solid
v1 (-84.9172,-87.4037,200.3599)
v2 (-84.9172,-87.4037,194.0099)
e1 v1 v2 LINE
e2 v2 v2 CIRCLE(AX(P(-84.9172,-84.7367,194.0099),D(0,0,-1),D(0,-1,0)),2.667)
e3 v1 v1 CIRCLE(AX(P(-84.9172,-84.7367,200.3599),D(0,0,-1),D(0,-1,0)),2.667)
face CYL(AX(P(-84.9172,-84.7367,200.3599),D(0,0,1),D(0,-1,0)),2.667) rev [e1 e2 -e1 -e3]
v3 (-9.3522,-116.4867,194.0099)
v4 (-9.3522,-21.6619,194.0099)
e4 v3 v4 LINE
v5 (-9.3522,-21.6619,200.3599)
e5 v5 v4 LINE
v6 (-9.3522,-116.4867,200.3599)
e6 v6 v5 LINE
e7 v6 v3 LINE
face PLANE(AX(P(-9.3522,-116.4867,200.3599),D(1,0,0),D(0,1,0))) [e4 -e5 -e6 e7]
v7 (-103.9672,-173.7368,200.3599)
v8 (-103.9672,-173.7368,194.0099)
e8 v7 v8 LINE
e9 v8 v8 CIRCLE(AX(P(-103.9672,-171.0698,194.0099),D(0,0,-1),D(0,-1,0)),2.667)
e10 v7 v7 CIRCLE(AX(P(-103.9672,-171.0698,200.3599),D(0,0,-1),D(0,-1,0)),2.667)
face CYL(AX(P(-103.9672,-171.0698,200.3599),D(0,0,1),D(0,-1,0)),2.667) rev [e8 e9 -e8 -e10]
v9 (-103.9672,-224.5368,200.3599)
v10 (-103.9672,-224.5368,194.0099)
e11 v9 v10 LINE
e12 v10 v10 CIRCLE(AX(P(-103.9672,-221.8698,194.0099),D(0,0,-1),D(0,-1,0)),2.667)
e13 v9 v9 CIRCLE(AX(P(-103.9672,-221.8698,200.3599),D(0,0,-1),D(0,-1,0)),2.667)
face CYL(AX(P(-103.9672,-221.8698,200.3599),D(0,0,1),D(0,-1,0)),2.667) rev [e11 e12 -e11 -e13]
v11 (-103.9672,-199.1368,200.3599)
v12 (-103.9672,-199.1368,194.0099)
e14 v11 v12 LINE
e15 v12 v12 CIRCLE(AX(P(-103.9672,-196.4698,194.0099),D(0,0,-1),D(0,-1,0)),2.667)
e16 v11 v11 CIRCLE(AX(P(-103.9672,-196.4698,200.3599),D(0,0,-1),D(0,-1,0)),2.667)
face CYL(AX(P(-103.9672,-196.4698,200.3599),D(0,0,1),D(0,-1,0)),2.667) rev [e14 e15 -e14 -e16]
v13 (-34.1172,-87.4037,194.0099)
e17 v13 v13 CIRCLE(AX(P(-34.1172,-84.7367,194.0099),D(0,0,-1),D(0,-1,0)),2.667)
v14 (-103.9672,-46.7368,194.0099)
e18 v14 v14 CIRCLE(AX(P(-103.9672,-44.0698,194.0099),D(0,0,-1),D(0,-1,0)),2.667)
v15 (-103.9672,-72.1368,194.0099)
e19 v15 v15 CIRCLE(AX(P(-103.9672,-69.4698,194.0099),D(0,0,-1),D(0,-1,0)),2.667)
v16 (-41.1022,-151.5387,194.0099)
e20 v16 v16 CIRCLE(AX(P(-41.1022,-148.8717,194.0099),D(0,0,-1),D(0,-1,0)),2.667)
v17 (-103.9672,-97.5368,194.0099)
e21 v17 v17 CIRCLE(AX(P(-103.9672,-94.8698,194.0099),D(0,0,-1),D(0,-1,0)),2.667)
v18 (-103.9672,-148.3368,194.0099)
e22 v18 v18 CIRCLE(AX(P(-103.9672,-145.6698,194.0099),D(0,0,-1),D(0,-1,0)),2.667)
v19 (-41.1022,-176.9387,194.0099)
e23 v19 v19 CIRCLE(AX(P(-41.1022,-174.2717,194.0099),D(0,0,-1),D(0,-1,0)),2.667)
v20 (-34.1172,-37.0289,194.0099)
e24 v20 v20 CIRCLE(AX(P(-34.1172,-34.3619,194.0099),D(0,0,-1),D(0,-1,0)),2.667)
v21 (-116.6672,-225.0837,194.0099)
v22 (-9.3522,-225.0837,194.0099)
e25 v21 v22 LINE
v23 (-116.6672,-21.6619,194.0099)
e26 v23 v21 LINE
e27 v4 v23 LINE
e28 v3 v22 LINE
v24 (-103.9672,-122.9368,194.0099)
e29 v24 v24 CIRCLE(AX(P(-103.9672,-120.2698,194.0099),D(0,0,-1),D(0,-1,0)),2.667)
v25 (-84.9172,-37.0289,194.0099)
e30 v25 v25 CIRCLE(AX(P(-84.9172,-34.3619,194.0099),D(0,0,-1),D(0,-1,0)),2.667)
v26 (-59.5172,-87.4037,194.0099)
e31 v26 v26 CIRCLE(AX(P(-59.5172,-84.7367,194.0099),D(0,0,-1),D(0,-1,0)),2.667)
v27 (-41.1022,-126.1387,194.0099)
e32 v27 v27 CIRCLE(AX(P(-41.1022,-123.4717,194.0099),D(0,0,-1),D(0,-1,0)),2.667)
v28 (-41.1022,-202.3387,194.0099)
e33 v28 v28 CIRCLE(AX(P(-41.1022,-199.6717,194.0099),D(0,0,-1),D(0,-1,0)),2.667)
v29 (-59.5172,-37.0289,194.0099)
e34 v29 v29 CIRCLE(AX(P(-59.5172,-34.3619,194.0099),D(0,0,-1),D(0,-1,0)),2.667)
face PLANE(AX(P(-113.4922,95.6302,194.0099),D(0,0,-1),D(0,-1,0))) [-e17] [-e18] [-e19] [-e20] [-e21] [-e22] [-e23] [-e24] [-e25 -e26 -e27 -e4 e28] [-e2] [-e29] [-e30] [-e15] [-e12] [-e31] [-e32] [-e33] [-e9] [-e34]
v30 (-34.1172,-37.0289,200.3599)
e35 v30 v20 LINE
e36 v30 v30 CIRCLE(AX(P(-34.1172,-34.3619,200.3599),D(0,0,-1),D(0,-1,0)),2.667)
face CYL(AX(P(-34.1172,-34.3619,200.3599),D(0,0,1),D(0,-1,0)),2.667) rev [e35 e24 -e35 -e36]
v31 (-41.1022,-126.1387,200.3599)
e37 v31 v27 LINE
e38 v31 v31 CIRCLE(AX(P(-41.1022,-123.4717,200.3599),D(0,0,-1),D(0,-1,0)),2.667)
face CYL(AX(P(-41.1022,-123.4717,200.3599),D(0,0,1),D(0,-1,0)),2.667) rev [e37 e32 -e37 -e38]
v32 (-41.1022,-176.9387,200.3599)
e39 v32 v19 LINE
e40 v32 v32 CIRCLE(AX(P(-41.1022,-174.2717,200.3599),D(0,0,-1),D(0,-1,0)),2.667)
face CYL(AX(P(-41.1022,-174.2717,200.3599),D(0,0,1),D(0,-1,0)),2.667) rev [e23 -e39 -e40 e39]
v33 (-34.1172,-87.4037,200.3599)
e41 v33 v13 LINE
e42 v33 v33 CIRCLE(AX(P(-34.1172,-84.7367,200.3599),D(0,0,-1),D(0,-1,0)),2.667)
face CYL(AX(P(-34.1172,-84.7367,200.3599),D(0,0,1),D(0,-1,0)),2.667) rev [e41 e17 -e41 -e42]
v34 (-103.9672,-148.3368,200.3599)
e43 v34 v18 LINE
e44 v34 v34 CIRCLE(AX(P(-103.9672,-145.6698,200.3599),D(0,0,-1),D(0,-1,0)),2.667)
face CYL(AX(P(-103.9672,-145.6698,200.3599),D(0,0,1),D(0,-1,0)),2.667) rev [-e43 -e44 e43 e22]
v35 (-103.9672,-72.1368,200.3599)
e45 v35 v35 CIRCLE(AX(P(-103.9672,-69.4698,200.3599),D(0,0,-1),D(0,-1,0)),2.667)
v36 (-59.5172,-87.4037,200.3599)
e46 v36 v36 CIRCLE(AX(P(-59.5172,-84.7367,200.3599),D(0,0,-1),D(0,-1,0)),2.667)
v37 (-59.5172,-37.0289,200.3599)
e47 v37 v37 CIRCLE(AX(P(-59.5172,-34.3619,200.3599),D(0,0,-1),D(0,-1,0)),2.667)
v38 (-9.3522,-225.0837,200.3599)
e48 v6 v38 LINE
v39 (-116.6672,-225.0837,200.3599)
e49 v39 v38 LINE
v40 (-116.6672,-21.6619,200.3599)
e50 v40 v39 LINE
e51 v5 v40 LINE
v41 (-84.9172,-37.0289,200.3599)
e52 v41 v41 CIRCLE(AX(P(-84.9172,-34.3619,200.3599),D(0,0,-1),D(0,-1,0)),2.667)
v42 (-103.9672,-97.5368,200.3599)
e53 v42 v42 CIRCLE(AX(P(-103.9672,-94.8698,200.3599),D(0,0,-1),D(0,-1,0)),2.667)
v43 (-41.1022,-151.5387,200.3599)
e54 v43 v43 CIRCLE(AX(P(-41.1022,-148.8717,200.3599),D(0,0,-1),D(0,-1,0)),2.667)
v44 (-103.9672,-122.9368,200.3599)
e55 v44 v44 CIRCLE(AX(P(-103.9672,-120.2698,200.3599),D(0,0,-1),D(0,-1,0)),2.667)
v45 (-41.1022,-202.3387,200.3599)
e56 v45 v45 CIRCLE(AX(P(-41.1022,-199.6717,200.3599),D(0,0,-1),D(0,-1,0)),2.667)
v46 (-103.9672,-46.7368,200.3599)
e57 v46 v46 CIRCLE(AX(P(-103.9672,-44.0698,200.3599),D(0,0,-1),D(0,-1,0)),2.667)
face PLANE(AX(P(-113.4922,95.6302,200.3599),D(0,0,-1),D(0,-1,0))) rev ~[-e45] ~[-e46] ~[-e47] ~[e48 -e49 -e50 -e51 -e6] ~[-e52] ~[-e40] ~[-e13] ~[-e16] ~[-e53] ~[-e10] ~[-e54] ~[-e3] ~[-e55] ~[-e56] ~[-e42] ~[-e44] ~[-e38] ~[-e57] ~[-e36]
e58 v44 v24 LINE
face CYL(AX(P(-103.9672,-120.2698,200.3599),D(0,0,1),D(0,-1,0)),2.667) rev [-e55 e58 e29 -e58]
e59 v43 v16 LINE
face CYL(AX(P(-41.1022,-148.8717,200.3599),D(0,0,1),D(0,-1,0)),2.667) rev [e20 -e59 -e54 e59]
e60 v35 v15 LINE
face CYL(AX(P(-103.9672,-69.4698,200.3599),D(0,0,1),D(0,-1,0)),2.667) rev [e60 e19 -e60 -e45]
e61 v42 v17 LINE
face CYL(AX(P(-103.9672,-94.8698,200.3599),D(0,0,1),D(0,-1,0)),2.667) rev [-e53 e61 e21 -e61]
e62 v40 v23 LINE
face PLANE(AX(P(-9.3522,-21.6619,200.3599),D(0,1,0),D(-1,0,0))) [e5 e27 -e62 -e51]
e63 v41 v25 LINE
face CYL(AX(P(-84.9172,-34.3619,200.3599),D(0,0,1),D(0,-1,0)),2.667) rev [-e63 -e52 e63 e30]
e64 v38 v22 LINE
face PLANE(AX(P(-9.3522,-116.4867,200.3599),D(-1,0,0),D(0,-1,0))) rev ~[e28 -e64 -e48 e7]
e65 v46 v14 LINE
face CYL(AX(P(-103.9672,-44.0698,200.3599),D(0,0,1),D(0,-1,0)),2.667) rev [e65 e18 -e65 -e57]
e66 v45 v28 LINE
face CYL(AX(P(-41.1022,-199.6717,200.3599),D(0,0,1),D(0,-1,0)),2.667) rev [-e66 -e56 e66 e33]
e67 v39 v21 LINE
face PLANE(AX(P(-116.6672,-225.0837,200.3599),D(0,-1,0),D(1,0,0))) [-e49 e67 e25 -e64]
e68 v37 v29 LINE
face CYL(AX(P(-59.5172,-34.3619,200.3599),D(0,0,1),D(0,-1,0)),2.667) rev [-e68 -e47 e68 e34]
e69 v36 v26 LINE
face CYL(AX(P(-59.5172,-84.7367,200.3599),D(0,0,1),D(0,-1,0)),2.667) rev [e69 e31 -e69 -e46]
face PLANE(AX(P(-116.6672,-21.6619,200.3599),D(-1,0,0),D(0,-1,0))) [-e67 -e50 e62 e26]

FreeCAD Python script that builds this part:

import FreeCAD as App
import Part
import Sketcher

V = App.Vector
Q = App.Units.Quantity


def add_polygon(sketch, points):
    """Adds a closed chain of lines whose ends are joined by coincident constraints."""
    first, n = sketch.GeometryCount, len(points)
    for a, b in zip(points, points[1:] + points[:1]):
        sketch.addGeometry(Part.LineSegment(App.Vector(*a, 0), App.Vector(*b, 0)), False)
    for i in range(n):
        sketch.addConstraint(Sketcher.Constraint("Coincident", first + i, 2, first + (i + 1) % n, 1))

doc = App.newDocument("Part")
body = doc.addObject("PartDesign::Body", "Body")

# Sketch on XY plane
sketch1 = body.newObject("Sketcher::SketchObject", "Sketch")
sketch1.AttachmentSupport = (doc.getObject("XY_Plane"), [""])
sketch1.MapMode = "FlatFace"
sketch1.AttachmentOffset = App.Placement(V(0, 0, 200.3599), App.Rotation())
add_polygon(sketch1, [(-9.4, -21.7), (-9.4, -225.1), (-116.7, -225.1), (-116.7, -21.7)])  # lines 0-3
sketch1.addGeometry(Part.Circle(V(-34.1, -34.4, 0), V(0, 0, 1), 2.7), False)  # 4
sketch1.addGeometry(Part.Circle(V(-34.1, -84.7, 0), V(0, 0, 1), 2.7), False)  # 5
sketch1.addGeometry(Part.Circle(V(-59.5, -34.4, 0), V(0, 0, 1), 2.7), False)  # 6
sketch1.addGeometry(Part.Circle(V(-59.5, -84.7, 0), V(0, 0, 1), 2.7), False)  # 7
sketch1.addGeometry(Part.Circle(V(-41.1, -123.5, 0), V(0, 0, 1), 2.7), False)  # 8
sketch1.addGeometry(Part.Circle(V(-41.1, -148.9, 0), V(0, 0, 1), 2.7), False)  # 9
sketch1.addGeometry(Part.Circle(V(-41.1, -174.3, 0), V(0, 0, 1), 2.7), False)  # 10
sketch1.addGeometry(Part.Circle(V(-41.1, -199.7, 0), V(0, 0, 1), 2.7), False)  # 11
sketch1.addGeometry(Part.Circle(V(-84.9, -34.4, 0), V(0, 0, 1), 2.7), False)  # 12
sketch1.addGeometry(Part.Circle(V(-84.9, -84.7, 0), V(0, 0, 1), 2.7), False)  # 13
sketch1.addGeometry(Part.Circle(V(-104, -44.1, 0), V(0, 0, 1), 2.7), False)  # 14
sketch1.addGeometry(Part.Circle(V(-104, -69.5, 0), V(0, 0, 1), 2.7), False)  # 15
sketch1.addGeometry(Part.Circle(V(-104, -94.9, 0), V(0, 0, 1), 2.7), False)  # 16
sketch1.addGeometry(Part.Circle(V(-104, -120.3, 0), V(0, 0, 1), 2.7), False)  # 17
sketch1.addGeometry(Part.Circle(V(-104, -145.7, 0), V(0, 0, 1), 2.7), False)  # 18
sketch1.addGeometry(Part.Circle(V(-104, -171.1, 0), V(0, 0, 1), 2.7), False)  # 19
sketch1.addGeometry(Part.Circle(V(-104, -196.5, 0), V(0, 0, 1), 2.7), False)  # 20
sketch1.addGeometry(Part.Circle(V(-104, -221.9, 0), V(0, 0, 1), 2.7), False)  # 21
sketch1.addConstraint([
    Sketcher.Constraint("Vertical", 0),
    Sketcher.Constraint("Horizontal", 1),
    Sketcher.Constraint("Vertical", 2),
    Sketcher.Constraint("Horizontal", 3),
    Sketcher.Constraint("Equal", 4, 5),
    Sketcher.Constraint("Equal", 5, 6),
    Sketcher.Constraint("Equal", 6, 7),
    Sketcher.Constraint("Equal", 7, 8),
    Sketcher.Constraint("Equal", 8, 9),
    Sketcher.Constraint("Equal", 9, 10),
    Sketcher.Constraint("Equal", 10, 11),
    Sketcher.Constraint("Equal", 11, 12),
    Sketcher.Constraint("Equal", 12, 13),
    Sketcher.Constraint("Equal", 13, 14),
    Sketcher.Constraint("Equal", 14, 15),
    Sketcher.Constraint("Equal", 15, 16),
    Sketcher.Constraint("Equal", 16, 17),
    Sketcher.Constraint("Equal", 17, 18),
    Sketcher.Constraint("Equal", 18, 19),
    Sketcher.Constraint("Equal", 19, 20),
    Sketcher.Constraint("Equal", 20, 21),
    Sketcher.Constraint("Horizontal", 4, 3, 6, 3),
    Sketcher.Constraint("Horizontal", 5, 3, 7, 3),
    Sketcher.Constraint("Horizontal", 6, 3, 12, 3),
    Sketcher.Constraint("Horizontal", 7, 3, 13, 3),
    Sketcher.Constraint("Vertical", 4, 3, 5, 3),
    Sketcher.Constraint("Vertical", 6, 3, 7, 3),
    Sketcher.Constraint("Vertical", 8, 3, 9, 3),
    Sketcher.Constraint("Vertical", 9, 3, 10, 3),
    Sketcher.Constraint("Vertical", 10, 3, 11, 3),
    Sketcher.Constraint("Vertical", 12, 3, 13, 3),
    Sketcher.Constraint("Vertical", 14, 3, 15, 3),
    Sketcher.Constraint("Vertical", 15, 3, 16, 3),
    Sketcher.Constraint("Vertical", 16, 3, 17, 3),
    Sketcher.Constraint("Vertical", 17, 3, 18, 3),
    Sketcher.Constraint("Vertical", 18, 3, 19, 3),
    Sketcher.Constraint("Vertical", 19, 3, 20, 3),
    Sketcher.Constraint("Vertical", 20, 3, 21, 3),
    Sketcher.Constraint("Diameter", 4, Q("0.21 in")),
    Sketcher.Constraint("DistanceX", 6, 3, 4, 3, Q("1 in")),
    Sketcher.Constraint("DistanceY", 9, 3, 8, 3, Q("1 in")),
    Sketcher.Constraint("DistanceY", 10, 3, 9, 3, Q("1 in")),
    Sketcher.Constraint("DistanceY", 11, 3, 10, 3, Q("1 in")),
    Sketcher.Constraint("DistanceX", 12, 3, 6, 3, Q("1 in")),
    Sketcher.Constraint("DistanceY", 15, 3, 14, 3, Q("1 in")),
    Sketcher.Constraint("DistanceY", 16, 3, 15, 3, Q("1 in")),
    Sketcher.Constraint("DistanceY", 17, 3, 16, 3, Q("1 in")),
    Sketcher.Constraint("DistanceY", 18, 3, 17, 3, Q("1 in")),
    Sketcher.Constraint("DistanceY", 19, 3, 18, 3, Q("1 in")),
    Sketcher.Constraint("DistanceY", 20, 3, 19, 3, Q("1 in")),
    Sketcher.Constraint("DistanceY", 21, 3, 20, 3, Q("1 in")),
    Sketcher.Constraint("DistanceX", 1, 2, 21, 3, Q("0.5 in")),
    Sketcher.Constraint("DistanceY", 12, 3, 2, 2, Q("0.5 in")),
    Sketcher.Constraint("DistanceX", 1, 2, 1, 1, Q("4.225 in")),
    Sketcher.Constraint("DistanceX", 14, 3, 12, 3, Q("0.75 in")),
    Sketcher.Constraint("DistanceX", 11, 3, 0, 2, Q("1.25 in")),
    Sketcher.Constraint("DistanceY", 8, 3, 5, 3, Q("1.525 in")),
    Sketcher.Constraint("DistanceY", 0, 2, 0, 1, Q("203.4218 mm")),
    Sketcher.Constraint("DistanceX", 4, 3, -1, 1, Q("1.3432 in")),
    Sketcher.Constraint("DistanceY", 5, 3, -1, 1, Q("3.3361 in")),
    Sketcher.Constraint("DistanceY", 14, 3, 12, 3, Q("0.3822 in")),
    Sketcher.Constraint("DistanceY", 4, 3, -1, 1, Q("34.362 mm")),
])
pad1 = body.newObject("PartDesign::Pad", "Pad")
pad1.Profile = sketch1
pad1.Length = Q("0.25 in")
pad1.Reversed = True

doc.recompute()
